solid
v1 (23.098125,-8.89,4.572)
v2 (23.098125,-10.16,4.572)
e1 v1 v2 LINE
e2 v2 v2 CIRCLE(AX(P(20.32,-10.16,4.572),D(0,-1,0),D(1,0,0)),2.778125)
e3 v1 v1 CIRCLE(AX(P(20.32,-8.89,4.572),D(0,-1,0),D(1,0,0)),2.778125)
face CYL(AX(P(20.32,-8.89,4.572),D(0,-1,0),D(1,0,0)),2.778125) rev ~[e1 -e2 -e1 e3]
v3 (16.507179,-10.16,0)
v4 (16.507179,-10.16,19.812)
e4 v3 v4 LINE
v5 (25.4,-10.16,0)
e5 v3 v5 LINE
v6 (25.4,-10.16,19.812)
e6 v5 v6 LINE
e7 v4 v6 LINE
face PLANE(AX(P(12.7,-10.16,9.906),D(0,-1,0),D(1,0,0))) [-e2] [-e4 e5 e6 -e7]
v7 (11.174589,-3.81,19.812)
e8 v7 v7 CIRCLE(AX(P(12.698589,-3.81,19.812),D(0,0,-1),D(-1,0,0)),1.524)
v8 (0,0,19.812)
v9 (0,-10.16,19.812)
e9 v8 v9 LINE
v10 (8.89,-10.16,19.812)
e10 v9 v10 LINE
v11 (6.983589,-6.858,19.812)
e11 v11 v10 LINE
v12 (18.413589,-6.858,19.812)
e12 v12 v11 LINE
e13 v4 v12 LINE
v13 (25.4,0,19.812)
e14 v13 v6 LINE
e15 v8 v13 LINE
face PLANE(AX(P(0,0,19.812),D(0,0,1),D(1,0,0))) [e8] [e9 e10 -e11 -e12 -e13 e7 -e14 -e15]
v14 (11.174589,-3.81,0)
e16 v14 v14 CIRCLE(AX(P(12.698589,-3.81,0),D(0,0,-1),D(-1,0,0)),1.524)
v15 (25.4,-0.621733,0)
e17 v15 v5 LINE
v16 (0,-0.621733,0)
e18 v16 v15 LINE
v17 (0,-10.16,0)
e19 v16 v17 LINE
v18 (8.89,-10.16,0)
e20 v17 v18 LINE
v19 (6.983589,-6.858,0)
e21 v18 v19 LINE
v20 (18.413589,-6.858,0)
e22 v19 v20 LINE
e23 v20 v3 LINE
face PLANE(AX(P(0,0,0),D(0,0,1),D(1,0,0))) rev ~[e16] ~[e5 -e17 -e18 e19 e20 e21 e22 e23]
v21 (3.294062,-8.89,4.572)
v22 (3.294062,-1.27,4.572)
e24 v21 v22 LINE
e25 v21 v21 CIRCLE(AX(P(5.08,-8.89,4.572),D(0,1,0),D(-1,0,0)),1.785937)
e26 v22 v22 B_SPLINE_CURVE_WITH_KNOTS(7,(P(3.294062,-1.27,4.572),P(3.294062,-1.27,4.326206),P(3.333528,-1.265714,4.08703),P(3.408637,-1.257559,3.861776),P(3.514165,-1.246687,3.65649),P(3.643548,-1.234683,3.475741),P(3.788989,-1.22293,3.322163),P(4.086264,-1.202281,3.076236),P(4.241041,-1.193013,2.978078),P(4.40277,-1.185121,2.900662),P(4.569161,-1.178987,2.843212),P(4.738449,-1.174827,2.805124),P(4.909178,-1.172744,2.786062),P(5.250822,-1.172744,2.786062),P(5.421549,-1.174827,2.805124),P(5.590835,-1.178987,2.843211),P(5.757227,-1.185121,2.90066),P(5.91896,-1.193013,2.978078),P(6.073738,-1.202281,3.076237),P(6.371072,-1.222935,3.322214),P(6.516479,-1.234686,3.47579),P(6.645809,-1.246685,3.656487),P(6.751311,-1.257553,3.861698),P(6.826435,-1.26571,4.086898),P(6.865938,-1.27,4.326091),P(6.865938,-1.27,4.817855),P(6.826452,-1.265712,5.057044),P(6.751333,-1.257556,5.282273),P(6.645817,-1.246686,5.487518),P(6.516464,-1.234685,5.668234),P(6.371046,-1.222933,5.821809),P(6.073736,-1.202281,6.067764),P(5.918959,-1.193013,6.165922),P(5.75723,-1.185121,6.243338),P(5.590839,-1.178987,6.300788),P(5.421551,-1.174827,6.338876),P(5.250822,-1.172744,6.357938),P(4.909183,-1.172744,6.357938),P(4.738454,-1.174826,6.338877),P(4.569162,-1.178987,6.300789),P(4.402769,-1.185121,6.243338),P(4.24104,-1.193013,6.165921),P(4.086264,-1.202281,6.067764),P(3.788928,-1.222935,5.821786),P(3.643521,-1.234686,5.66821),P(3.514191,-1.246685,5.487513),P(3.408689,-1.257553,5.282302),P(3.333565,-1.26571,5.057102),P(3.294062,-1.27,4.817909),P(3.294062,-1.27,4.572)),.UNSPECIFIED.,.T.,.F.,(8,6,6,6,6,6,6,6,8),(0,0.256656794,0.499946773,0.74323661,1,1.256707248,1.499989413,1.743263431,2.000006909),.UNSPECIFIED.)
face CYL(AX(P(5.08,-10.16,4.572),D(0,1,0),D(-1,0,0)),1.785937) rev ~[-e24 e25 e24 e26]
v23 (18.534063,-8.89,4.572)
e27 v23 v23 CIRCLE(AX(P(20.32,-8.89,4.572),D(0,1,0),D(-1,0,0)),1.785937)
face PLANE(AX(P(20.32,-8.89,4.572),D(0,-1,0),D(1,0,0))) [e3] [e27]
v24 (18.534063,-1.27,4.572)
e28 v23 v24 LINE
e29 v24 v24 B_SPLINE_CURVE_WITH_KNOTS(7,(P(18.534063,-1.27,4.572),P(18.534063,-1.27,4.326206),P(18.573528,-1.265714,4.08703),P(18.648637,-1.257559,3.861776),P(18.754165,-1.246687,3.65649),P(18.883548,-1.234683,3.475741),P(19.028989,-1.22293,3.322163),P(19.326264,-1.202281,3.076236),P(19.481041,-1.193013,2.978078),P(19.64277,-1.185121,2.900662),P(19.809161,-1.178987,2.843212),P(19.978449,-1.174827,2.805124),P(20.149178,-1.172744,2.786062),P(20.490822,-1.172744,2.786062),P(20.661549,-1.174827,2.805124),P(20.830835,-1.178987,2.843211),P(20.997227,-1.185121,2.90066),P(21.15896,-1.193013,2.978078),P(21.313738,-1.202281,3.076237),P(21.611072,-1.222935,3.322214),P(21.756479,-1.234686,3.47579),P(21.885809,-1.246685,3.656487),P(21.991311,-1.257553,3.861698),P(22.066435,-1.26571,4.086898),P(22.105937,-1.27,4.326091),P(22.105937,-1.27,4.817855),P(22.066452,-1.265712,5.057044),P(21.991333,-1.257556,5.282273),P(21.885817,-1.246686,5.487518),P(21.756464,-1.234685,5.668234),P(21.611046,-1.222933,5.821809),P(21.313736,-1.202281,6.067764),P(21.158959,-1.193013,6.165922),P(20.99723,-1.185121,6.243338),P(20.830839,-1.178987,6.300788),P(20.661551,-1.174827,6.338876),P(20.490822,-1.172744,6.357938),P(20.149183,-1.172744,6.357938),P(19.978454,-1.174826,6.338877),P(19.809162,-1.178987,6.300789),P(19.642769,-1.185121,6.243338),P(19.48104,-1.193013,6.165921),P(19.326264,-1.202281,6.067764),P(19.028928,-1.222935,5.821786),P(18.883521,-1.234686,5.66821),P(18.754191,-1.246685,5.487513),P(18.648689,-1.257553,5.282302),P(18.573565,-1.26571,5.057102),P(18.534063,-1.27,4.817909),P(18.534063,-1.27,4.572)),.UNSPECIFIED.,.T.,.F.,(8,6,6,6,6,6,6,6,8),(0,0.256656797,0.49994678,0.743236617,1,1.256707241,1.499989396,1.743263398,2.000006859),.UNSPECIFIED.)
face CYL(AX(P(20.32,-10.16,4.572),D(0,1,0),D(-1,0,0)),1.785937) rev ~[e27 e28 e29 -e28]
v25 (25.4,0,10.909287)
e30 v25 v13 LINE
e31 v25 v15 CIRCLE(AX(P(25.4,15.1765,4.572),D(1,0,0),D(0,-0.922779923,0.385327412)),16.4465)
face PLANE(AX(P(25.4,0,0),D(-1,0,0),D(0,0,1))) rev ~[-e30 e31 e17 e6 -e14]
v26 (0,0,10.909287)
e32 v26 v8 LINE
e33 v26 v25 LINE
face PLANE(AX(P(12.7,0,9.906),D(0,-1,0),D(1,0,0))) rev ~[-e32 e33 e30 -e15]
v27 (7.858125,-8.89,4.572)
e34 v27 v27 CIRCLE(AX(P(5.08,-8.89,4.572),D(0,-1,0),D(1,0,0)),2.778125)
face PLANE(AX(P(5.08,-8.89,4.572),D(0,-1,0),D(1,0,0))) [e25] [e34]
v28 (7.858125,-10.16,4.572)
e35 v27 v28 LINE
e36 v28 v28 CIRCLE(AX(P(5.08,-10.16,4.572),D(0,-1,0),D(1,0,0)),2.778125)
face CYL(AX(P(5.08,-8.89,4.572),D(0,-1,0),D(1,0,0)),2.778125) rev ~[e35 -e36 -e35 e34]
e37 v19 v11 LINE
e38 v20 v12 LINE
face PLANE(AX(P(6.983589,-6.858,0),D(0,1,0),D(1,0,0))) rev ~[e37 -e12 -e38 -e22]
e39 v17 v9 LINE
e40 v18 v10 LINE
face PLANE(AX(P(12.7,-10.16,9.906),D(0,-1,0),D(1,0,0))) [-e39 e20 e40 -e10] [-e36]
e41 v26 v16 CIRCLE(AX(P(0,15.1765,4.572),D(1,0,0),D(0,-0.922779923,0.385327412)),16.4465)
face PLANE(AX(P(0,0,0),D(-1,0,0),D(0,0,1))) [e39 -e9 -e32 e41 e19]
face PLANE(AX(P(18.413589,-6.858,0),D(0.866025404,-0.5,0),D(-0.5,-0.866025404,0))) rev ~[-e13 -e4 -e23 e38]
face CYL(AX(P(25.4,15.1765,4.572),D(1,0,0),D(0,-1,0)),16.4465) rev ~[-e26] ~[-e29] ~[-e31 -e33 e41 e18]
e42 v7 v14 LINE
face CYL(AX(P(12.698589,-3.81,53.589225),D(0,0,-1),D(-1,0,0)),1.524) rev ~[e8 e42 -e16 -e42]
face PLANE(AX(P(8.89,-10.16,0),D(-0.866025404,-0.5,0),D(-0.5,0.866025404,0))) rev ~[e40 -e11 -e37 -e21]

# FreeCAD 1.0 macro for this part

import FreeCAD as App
import Part
import Sketcher

V = App.Vector
Q = App.Units.Quantity

doc = App.newDocument("Part")
params = doc.addObject("Spreadsheet::Sheet", "Params")
for row, (alias, value) in enumerate([
    ("sketch1_width", "1 in"),
    ("sketch1_height", "0.78 in"),
    ("pad1_length", "0.4 in"),
    ("sketch2_diameter", "0.140625 in"),
    ("hole_diameter", "0.140625 in"),
    ("hole_cbore_diameter", "0.21875 in"),
    ("hole_cbore_depth", "0.05 in"),
    ("sketch3_diameter", "0.140625 in"),
    ("hole2_diameter", "0.140625 in"),
    ("hole2_cbore_diameter", "0.21875 in"),
    ("hole2_cbore_depth", "0.05 in"),
    ("sketch4_width", "0.45 in"),
    ("sketch5_diameter", "0.12 in"),
    ("hole3_diameter", "0.12 in"),
    ("sketch6_diameter", "1.295 in"),
    ("pocket2_length", "1 in"),
], start=1):
    params.set(f"A{row}", alias)
    params.set(f"B{row}", "=" + value)
    params.setAlias(f"B{row}", alias)

body = doc.addObject("PartDesign::Body", "Body")

# Sketch on XZ plane
sketch1 = doc.addObject("Sketcher::SketchObject", "Sketch")
body.addObject(sketch1)
sketch1.AttachmentSupport = (doc.XZ_Plane, [""])
sketch1.MapMode = "FlatFace"
sketch1.addGeometry([
    Part.LineSegment(V(0, 19.812, 0), V(0, 0, 0)),
    Part.LineSegment(V(0, 0, 0), V(25.4, 0, 0)),
    Part.LineSegment(V(25.4, 0, 0), V(25.4, 19.812, 0)),
    Part.LineSegment(V(25.4, 19.812, 0), V(0, 19.812, 0)),
], False)
sketch1.addConstraint([
    Sketcher.Constraint("Coincident", 0, 2, 1, 1),
    Sketcher.Constraint("Coincident", 1, 2, 2, 1),
    Sketcher.Constraint("Coincident", 2, 2, 3, 1),
    Sketcher.Constraint("Coincident", 3, 2, 0, 1),
    Sketcher.Constraint("Vertical", 0),
    Sketcher.Constraint("Horizontal", 1),
    Sketcher.Constraint("Vertical", 2),
    Sketcher.Constraint("Horizontal", 3),
    Sketcher.Constraint("Coincident", 0, 2, -1, 1),
    Sketcher.Constraint("DistanceX", 1, 1, 1, 2, Q("1 in")),
    Sketcher.Constraint("DistanceY", 0, 2, 0, 1, Q("0.78 in")),
])
sketch1.setExpression("Constraints[9]", "Params.sketch1_width")
sketch1.setExpression("Constraints[10]", "Params.sketch1_height")
pad1 = doc.addObject("PartDesign::Pad", "Pad")
body.addObject(pad1)
pad1.Profile = sketch1
pad1.setExpression("Length", "Params.pad1_length")

# Sketch on XZ plane
sketch2 = doc.addObject("Sketcher::SketchObject", "Sketch001")
body.addObject(sketch2)
sketch2.AttachmentSupport = (doc.XZ_Plane, [""])
sketch2.MapMode = "FlatFace"
sketch2.AttachmentOffset = App.Placement(V(0, 0, 0.4 * 25.4), App.Rotation())
sketch2.addGeometry(Part.Circle(V(5.08, 4.572, 0), V(0, 0, 1), 1.785937), False)
sketch2.addConstraint([
    Sketcher.Constraint("Diameter", 0, Q("0.140625 in")),
    Sketcher.Constraint("DistanceX", -1, 1, 0, 3, Q("0.2 in")),
    Sketcher.Constraint("DistanceY", -1, 1, 0, 3, Q("0.18 in")),
])
sketch2.setExpression("Constraints[0]", "Params.sketch2_diameter")
doc.recompute()
hole = doc.addObject("PartDesign::Hole", "Hole")
body.addObject(hole)
hole.Profile = sketch2
hole.ThreadType = "None"
hole.setExpression("Diameter", "Params.hole_diameter")
hole.DepthType = "ThroughAll"
hole.HoleCutType = "Counterbore"
hole.setExpression("HoleCutDiameter", "Params.hole_cbore_diameter")
hole.setExpression("HoleCutDepth", "Params.hole_cbore_depth")

# Sketch on XZ plane
sketch3 = doc.addObject("Sketcher::SketchObject", "Sketch002")
body.addObject(sketch3)
sketch3.AttachmentSupport = (doc.XZ_Plane, [""])
sketch3.MapMode = "FlatFace"
sketch3.AttachmentOffset = App.Placement(V(0, 0, 0.4 * 25.4), App.Rotation())
sketch3.addGeometry(Part.Circle(V(20.32, 4.572, 0), V(0, 0, 1), 1.785937), False)
sketch3.addConstraint([
    Sketcher.Constraint("Diameter", 0, Q("0.140625 in")),
    Sketcher.Constraint("DistanceX", -1, 1, 0, 3, Q("0.8 in")),
    Sketcher.Constraint("DistanceY", -1, 1, 0, 3, Q("0.18 in")),
])
sketch3.setExpression("Constraints[0]", "Params.sketch3_diameter")
doc.recompute()
hole2 = doc.addObject("PartDesign::Hole", "Hole001")
body.addObject(hole2)
hole2.Profile = sketch3
hole2.ThreadType = "None"
hole2.setExpression("Diameter", "Params.hole2_diameter")
hole2.DepthType = "ThroughAll"
hole2.HoleCutType = "Counterbore"
hole2.setExpression("HoleCutDiameter", "Params.hole2_cbore_diameter")
hole2.setExpression("HoleCutDepth", "Params.hole2_cbore_depth")

# Sketch on XY plane
sketch4 = doc.addObject("Sketcher::SketchObject", "Sketch003")
body.addObject(sketch4)
sketch4.AttachmentSupport = (doc.XY_Plane, [""])
sketch4.MapMode = "FlatFace"
sketch4.addGeometry([
    Part.LineSegment(V(16.507179, -10.16, 0), V(8.89, -10.16, 0)),
    Part.LineSegment(V(8.89, -10.16, 0), V(6.983589, -6.858, 0)),
    Part.LineSegment(V(6.983589, -6.858, 0), V(18.413589, -6.858, 0)),
    Part.LineSegment(V(18.413589, -6.858, 0), V(16.507179, -10.16, 0)),
], False)
sketch4.addConstraint([
    Sketcher.Constraint("Coincident", 0, 2, 1, 1),
    Sketcher.Constraint("Coincident", 1, 2, 2, 1),
    Sketcher.Constraint("Coincident", 2, 2, 3, 1),
    Sketcher.Constraint("Coincident", 3, 2, 0, 1),
    Sketcher.Constraint("Horizontal", 0),
    Sketcher.Constraint("Horizontal", 2),
    Sketcher.Constraint("Equal", 1, 3),
    Sketcher.Constraint("Angle", 1, Q("120 deg")),
    Sketcher.Constraint("DistanceX", 2, 1, 2, 2, Q("0.45 in")),
    Sketcher.Constraint("DistanceY", 0, 2, -1, 1, Q("0.4 in")),
    Sketcher.Constraint("DistanceX", -1, 1, 0, 2, Q("0.35 in")),
    Sketcher.Constraint("DistanceY", 1, 2, -1, 1, Q("0.27 in")),
])
sketch4.setExpression("Constraints[8]", "Params.sketch4_width")
pocket1 = doc.addObject("PartDesign::Pocket", "Pocket")
body.addObject(pocket1)
pocket1.Profile = sketch4
pocket1.Type = "ThroughAll"
pocket1.Reversed = True

# Sketch on XY plane
sketch5 = doc.addObject("Sketcher::SketchObject", "Sketch004")
body.addObject(sketch5)
sketch5.AttachmentSupport = (doc.XY_Plane, [""])
sketch5.MapMode = "FlatFace"
sketch5.AttachmentOffset = App.Placement(V(0, 0, 0.78 * 25.4), App.Rotation())
sketch5.addGeometry(Part.Circle(V(12.698589, -3.81, 0), V(0, 0, 1), 1.524), False)
sketch5.addConstraint([
    Sketcher.Constraint("Diameter", 0, Q("0.12 in")),
    Sketcher.Constraint("DistanceY", 0, 3, -1, 1, Q("0.15 in")),
    Sketcher.Constraint("DistanceX", -1, 1, 0, 3, Q("12.698589 mm")),
])
sketch5.setExpression("Constraints[0]", "Params.sketch5_diameter")
doc.recompute()
hole3 = doc.addObject("PartDesign::Hole", "Hole002")
body.addObject(hole3)
hole3.Profile = sketch5
hole3.ThreadType = "None"
hole3.setExpression("Diameter", "Params.hole3_diameter")
hole3.DepthType = "ThroughAll"

# Sketch on YZ plane
sketch6 = doc.addObject("Sketcher::SketchObject", "Sketch005")
body.addObject(sketch6)
sketch6.AttachmentSupport = (doc.YZ_Plane, [""])
sketch6.MapMode = "FlatFace"
sketch6.AttachmentOffset = App.Placement(V(0, 0, 1 * 25.4), App.Rotation())
sketch6.addGeometry(Part.Circle(V(15.1765, 4.572, 0), V(0, 0, 1), 16.4465), False)
sketch6.addConstraint([
    Sketcher.Constraint("Diameter", 0, Q("1.295 in")),
    Sketcher.Constraint("DistanceY", -1, 1, 0, 3, Q("0.18 in")),
    Sketcher.Constraint("DistanceX", -1, 1, 0, 3, Q("0.5975 in")),
])
sketch6.setExpression("Constraints[0]", "Params.sketch6_diameter")
pocket2 = doc.addObject("PartDesign::Pocket", "Pocket001")
body.addObject(pocket2)
pocket2.Profile = sketch6
pocket2.setExpression("Length", "Params.pocket2_length")

doc.recompute()
